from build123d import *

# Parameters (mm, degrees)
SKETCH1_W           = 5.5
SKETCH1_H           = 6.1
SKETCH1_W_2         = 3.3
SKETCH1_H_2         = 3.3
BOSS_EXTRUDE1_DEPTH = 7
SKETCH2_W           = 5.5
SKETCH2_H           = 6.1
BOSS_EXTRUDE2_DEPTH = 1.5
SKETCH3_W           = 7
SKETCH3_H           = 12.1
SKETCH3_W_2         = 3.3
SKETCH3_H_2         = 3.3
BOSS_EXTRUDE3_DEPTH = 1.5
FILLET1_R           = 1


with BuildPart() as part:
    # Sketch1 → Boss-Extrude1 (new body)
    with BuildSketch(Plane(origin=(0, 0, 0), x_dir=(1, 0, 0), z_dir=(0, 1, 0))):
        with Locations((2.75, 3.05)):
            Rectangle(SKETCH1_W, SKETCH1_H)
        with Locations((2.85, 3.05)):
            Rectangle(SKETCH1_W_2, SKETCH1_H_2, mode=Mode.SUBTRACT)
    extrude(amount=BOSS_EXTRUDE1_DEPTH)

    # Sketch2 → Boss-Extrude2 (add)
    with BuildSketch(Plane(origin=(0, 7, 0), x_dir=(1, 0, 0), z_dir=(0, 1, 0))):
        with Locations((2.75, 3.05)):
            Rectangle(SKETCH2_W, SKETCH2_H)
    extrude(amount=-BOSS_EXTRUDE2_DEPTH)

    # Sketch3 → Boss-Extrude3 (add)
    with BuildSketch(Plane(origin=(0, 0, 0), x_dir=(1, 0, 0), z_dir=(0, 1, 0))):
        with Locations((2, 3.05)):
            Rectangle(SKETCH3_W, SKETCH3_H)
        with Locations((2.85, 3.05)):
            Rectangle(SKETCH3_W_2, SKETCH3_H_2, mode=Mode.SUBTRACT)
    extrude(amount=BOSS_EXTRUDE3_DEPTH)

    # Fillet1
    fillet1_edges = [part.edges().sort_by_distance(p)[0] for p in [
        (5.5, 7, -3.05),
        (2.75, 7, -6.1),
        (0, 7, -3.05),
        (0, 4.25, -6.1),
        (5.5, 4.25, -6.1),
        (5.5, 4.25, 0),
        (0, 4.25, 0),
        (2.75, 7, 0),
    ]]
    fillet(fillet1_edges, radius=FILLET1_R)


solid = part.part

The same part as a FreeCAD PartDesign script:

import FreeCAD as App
import Part
import Sketcher

V = App.Vector
Q = App.Units.Quantity


def edges_at(feature, points):
    """Names of the edges that pass closest to the given points."""
    edges = feature.Shape.Edges
    near = lambda p: min(range(len(edges)), key=lambda i: edges[i].distToShape(Part.Vertex(*p))[0])
    return sorted({f"Edge{near(p) + 1}" for p in points})


def add_polygon(sketch, points):
    """Adds a closed chain of lines whose ends are joined by coincident constraints."""
    first, n = sketch.GeometryCount, len(points)
    for a, b in zip(points, points[1:] + points[:1]):
        sketch.addGeometry(Part.LineSegment(App.Vector(*a, 0), App.Vector(*b, 0)), False)
    for i in range(n):
        sketch.addConstraint(Sketcher.Constraint("Coincident", first + i, 2, first + (i + 1) % n, 1))

doc = App.newDocument("Part")
body = doc.addObject("PartDesign::Body", "Body")

sketch1 = body.newObject("Sketcher::SketchObject", "Sketch")
sketch1.AttachmentSupport = (doc.getObject("XZ_Plane"), [""])
sketch1.MapMode = "FlatFace"
add_polygon(sketch1, [(0, -6.1), (0, 0), (5.5, 0), (5.5, -6.1)])
add_polygon(sketch1, [(4.5, -1.4), (1.2, -1.4), (1.2, -4.7), (4.5, -4.7)])
sketch1.addConstraint(Sketcher.Constraint("Vertical", 0))
sketch1.addConstraint(Sketcher.Constraint("Horizontal", 1))
sketch1.addConstraint(Sketcher.Constraint("Vertical", 2))
sketch1.addConstraint(Sketcher.Constraint("Horizontal", 3))
sketch1.addConstraint(Sketcher.Constraint("Horizontal", 4))
sketch1.addConstraint(Sketcher.Constraint("Vertical", 5))
sketch1.addConstraint(Sketcher.Constraint("Horizontal", 6))
sketch1.addConstraint(Sketcher.Constraint("Vertical", 7))
sketch1.addConstraint(Sketcher.Constraint("Coincident", 0, 2, -1, 1))
sketch1.addConstraint(Sketcher.Constraint("Equal", 6, 5))
sketch1.addConstraint(Sketcher.Constraint("DistanceX", 1, 1, 1, 2, Q("5.5 mm")))
sketch1.addConstraint(Sketcher.Constraint("DistanceX", 4, 2, 4, 1, Q("3.3 mm")))
sketch1.addConstraint(Sketcher.Constraint("DistanceY", 0, 1, 0, 2, Q("6.1 mm")))
sketch1.addConstraint(Sketcher.Constraint("DistanceX", 6, 2, 2, 2, Q("1 mm")))
sketch1.addConstraint(Sketcher.Constraint("DistanceY", 4, 2, -1, 1, Q("1.4 mm")))
pad1 = body.newObject("PartDesign::Pad", "Pad")
pad1.Profile = sketch1
pad1.Length = 7
pad1.Reversed = True

sketch2 = body.newObject("Sketcher::SketchObject", "Sketch001")
sketch2.AttachmentSupport = (doc.getObject("XZ_Plane"), [""])
sketch2.MapMode = "FlatFace"
sketch2.AttachmentOffset = App.Placement(V(0, 0, -7), App.Rotation())
add_polygon(sketch2, [(0, -6), (0, 0), (6, 0), (6, -6)])
sketch2.addConstraint(Sketcher.Constraint("Vertical", 0))
sketch2.addConstraint(Sketcher.Constraint("Horizontal", 1))
sketch2.addConstraint(Sketcher.Constraint("Vertical", 2))
sketch2.addConstraint(Sketcher.Constraint("Horizontal", 3))
sketch2.addConstraint(Sketcher.Constraint("Coincident", 0, 2, -1, 1))
sketch2.addConstraint(Sketcher.Constraint("DistanceX", 1, 1, 1, 2, Q("5.5 mm")))
sketch2.addConstraint(Sketcher.Constraint("DistanceY", 0, 1, 0, 2, Q("6.1 mm")))
pad2 = body.newObject("PartDesign::Pad", "Pad001")
pad2.Profile = sketch2
pad2.Length = 1.5

sketch3 = body.newObject("Sketcher::SketchObject", "Sketch002")
sketch3.AttachmentSupport = (doc.getObject("XZ_Plane"), [""])
sketch3.MapMode = "FlatFace"
add_polygon(sketch3, [(-1.5, -9.1), (-1.5, 3), (5.5, 3), (5.5, -9.1)])
add_polygon(sketch3, [(4.5, -1.4), (1.2, -1.4), (1.2, -4.7), (4.5, -4.7)])
sketch3.addConstraint(Sketcher.Constraint("Vertical", 0))
sketch3.addConstraint(Sketcher.Constraint("Horizontal", 1))
sketch3.addConstraint(Sketcher.Constraint("Vertical", 2))
sketch3.addConstraint(Sketcher.Constraint("Horizontal", 3))
sketch3.addConstraint(Sketcher.Constraint("Horizontal", 4))
sketch3.addConstraint(Sketcher.Constraint("Vertical", 5))
sketch3.addConstraint(Sketcher.Constraint("Horizontal", 6))
sketch3.addConstraint(Sketcher.Constraint("Vertical", 7))
sketch3.addConstraint(Sketcher.Constraint("Equal", 6, 5))
sketch3.addConstraint(Sketcher.Constraint("DistanceX", 1, 1, 1, 2, Q("7 mm")))
sketch3.addConstraint(Sketcher.Constraint("DistanceX", 4, 2, 4, 1, Q("3.3 mm")))
sketch3.addConstraint(Sketcher.Constraint("DistanceY", 0, 1, 0, 2, Q("12.1 mm")))
sketch3.addConstraint(Sketcher.Constraint("DistanceY", -1, 1, 0, 2, Q("3 mm")))
sketch3.addConstraint(Sketcher.Constraint("DistanceX", 6, 2, 2, 2, Q("1 mm")))
sketch3.addConstraint(Sketcher.Constraint("DistanceX", 0, 2, -1, 1, Q("1.5 mm")))
sketch3.addConstraint(Sketcher.Constraint("DistanceY", 4, 2, -1, 1, Q("1.4 mm")))
pad3 = body.newObject("PartDesign::Pad", "Pad002")
pad3.Profile = sketch3
pad3.Length = 1.5
pad3.Reversed = True
doc.recompute()

fillet = body.newObject("PartDesign::Fillet", "Fillet")
fillet.Base = (pad3, edges_at(pad3, [
    (5.5, 7, -3.05),
    (2.75, 7, -6.1),
    (0, 7, -3.05),
    (0, 4.25, -6.1),
    (5.5, 4.25, -6.1),
    (5.5, 4.25, 0),
    (0, 4.25, 0),
    (2.75, 7, 0),
]))
fillet.Radius = 1

doc.recompute()
